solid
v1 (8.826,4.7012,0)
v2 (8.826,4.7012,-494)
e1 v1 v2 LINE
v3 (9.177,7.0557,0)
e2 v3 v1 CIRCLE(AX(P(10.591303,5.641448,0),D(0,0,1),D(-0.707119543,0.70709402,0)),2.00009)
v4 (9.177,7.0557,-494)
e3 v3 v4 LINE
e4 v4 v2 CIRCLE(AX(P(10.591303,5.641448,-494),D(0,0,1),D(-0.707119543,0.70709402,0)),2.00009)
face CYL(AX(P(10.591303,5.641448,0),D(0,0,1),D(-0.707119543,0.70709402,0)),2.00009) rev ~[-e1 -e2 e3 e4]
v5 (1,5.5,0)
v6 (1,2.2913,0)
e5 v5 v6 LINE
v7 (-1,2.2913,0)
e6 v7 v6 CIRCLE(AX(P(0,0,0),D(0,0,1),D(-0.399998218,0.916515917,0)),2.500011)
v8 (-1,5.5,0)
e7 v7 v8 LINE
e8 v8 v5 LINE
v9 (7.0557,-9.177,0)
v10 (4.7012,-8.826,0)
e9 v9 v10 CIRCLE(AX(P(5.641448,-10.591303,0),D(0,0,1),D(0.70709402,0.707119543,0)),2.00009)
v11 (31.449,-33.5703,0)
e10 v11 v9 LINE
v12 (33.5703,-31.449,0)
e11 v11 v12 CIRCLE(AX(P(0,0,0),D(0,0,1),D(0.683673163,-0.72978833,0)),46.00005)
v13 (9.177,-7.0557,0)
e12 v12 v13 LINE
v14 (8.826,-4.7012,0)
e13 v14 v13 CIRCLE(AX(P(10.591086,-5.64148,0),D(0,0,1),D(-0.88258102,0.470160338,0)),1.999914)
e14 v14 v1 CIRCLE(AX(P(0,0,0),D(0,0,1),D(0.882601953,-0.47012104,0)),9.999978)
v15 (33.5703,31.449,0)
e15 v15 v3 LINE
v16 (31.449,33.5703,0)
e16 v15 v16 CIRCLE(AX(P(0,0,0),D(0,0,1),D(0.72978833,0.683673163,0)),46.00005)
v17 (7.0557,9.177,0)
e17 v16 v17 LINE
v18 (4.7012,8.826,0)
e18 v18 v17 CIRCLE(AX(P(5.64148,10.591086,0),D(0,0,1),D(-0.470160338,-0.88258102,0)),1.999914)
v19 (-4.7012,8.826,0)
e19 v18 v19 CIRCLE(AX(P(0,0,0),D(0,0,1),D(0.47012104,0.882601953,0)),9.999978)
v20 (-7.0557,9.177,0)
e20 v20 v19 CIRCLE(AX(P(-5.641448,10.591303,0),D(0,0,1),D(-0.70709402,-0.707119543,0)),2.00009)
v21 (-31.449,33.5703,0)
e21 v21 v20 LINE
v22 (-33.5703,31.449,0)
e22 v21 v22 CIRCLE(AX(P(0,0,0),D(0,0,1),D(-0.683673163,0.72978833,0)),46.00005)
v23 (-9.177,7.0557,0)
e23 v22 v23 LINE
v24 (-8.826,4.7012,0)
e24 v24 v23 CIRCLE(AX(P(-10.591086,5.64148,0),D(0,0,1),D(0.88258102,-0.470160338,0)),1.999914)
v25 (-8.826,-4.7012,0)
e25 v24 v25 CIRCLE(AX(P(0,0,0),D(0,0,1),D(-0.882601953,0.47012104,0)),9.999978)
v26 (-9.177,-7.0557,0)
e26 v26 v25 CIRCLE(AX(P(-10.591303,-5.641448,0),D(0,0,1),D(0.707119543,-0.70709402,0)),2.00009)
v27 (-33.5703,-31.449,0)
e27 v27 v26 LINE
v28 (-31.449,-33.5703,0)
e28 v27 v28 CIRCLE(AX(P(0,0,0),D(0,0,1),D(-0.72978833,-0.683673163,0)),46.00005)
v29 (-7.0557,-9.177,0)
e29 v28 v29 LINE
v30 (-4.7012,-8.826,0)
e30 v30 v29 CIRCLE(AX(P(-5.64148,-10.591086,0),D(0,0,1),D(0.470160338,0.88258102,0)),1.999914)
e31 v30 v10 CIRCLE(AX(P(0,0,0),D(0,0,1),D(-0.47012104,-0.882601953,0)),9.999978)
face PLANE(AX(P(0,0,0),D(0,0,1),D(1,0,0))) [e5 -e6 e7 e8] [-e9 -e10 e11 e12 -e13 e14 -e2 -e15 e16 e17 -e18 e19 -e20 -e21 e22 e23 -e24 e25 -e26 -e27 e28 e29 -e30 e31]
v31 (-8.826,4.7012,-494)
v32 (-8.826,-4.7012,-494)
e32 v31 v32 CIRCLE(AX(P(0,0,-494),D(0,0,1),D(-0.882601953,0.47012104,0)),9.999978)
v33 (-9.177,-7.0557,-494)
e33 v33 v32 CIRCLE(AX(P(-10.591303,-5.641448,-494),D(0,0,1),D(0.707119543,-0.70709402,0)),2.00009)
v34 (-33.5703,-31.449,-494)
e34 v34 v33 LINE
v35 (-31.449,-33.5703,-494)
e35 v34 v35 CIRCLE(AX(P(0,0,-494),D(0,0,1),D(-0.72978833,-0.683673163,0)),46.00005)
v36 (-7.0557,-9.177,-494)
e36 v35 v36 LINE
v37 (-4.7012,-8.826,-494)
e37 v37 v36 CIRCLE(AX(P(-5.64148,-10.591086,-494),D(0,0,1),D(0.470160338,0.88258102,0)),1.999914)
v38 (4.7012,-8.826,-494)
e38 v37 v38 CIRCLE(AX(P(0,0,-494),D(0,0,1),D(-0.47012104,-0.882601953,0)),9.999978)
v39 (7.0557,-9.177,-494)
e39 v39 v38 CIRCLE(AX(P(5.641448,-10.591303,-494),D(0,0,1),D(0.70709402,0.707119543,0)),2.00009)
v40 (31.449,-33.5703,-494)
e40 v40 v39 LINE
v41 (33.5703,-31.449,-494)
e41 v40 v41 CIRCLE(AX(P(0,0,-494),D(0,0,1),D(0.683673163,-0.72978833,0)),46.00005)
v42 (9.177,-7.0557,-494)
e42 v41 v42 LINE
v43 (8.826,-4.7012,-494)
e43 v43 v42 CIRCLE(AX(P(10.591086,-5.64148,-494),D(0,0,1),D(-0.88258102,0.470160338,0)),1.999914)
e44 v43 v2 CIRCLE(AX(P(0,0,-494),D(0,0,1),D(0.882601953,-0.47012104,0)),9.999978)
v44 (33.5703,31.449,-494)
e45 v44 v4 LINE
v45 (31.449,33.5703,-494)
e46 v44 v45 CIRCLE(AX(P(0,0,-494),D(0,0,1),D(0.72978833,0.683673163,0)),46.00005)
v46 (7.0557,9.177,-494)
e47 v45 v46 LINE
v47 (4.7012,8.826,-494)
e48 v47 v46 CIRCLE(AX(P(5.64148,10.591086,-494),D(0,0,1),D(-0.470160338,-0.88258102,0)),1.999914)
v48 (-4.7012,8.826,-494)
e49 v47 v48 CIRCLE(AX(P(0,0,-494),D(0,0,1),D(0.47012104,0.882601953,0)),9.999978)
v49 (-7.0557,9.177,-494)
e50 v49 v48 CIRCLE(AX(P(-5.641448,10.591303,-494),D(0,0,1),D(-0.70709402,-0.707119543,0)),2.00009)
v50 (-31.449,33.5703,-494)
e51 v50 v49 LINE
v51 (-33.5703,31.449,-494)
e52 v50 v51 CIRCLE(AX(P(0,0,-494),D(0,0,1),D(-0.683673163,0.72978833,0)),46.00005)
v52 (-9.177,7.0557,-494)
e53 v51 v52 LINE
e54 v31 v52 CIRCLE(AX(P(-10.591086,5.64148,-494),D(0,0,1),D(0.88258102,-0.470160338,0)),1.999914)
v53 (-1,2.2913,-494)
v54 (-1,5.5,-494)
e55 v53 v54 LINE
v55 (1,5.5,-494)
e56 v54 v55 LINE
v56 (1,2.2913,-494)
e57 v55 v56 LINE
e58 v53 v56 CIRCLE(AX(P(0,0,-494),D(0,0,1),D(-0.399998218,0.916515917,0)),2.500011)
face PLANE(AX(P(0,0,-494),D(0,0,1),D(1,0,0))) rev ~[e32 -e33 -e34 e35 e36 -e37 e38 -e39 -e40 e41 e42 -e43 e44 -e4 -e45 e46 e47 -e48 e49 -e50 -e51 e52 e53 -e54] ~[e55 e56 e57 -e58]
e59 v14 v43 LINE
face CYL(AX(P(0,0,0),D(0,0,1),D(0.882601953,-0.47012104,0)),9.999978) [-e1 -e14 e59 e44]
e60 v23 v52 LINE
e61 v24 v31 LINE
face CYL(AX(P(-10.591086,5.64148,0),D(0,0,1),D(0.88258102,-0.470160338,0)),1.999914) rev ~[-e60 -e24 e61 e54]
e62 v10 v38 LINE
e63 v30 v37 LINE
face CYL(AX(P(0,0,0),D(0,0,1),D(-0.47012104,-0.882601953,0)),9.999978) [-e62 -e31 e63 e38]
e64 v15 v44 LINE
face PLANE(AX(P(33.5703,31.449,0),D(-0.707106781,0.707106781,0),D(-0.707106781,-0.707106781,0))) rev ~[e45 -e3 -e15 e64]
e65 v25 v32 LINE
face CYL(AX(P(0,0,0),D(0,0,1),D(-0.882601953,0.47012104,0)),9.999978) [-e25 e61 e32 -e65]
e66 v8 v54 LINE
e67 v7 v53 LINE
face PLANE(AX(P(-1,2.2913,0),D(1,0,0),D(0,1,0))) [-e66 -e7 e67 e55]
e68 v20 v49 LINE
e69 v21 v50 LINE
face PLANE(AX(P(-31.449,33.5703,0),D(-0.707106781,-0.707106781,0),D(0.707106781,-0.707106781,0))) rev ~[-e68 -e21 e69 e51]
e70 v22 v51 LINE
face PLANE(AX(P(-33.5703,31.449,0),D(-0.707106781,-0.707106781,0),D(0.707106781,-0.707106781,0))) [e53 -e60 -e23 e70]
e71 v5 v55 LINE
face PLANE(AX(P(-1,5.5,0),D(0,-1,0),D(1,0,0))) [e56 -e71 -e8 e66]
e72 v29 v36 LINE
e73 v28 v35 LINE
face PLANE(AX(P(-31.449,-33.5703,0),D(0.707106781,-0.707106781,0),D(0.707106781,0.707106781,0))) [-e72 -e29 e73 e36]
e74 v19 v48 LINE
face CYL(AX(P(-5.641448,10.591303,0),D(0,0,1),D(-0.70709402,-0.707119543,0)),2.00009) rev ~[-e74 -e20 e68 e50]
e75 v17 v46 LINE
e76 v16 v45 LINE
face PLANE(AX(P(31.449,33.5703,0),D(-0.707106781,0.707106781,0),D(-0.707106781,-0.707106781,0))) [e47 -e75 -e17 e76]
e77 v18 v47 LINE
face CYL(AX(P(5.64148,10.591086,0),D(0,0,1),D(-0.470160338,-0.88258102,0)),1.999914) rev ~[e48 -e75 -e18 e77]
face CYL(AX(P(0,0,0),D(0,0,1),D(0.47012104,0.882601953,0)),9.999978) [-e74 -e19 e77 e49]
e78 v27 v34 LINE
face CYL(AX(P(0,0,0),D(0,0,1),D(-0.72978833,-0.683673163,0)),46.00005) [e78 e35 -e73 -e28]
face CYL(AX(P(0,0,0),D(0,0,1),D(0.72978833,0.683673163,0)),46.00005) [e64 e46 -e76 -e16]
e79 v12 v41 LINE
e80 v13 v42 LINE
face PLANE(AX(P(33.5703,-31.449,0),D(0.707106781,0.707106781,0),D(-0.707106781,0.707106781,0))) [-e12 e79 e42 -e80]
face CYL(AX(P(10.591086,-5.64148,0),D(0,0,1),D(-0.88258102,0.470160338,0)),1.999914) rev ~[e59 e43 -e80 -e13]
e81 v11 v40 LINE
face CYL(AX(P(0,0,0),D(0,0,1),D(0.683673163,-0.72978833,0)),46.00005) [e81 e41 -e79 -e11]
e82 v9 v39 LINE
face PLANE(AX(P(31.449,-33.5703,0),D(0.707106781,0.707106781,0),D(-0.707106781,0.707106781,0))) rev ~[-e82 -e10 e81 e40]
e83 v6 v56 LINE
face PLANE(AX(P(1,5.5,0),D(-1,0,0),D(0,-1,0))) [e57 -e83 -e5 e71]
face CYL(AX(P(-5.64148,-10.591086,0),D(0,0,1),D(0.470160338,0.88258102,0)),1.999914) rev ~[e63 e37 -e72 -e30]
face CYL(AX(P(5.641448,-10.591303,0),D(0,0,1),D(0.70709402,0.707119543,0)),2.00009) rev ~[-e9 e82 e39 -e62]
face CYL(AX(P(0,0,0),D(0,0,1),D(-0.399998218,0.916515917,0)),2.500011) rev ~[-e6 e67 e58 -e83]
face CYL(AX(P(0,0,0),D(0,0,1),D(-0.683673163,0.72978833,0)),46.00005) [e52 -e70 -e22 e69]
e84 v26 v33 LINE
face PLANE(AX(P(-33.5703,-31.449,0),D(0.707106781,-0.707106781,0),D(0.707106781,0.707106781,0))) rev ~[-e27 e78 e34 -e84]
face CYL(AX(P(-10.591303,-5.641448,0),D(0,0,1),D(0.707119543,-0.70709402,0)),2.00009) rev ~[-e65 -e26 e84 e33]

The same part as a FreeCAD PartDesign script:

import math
import FreeCAD as App
import Part
import Sketcher
from FreeCAD import Vector

doc = App.newDocument("Part")
body = doc.addObject("PartDesign::Body", "Body")

sketch1 = doc.addObject("Sketcher::SketchObject", "Sketch")
body.addObject(sketch1)
sketch1.AttachmentSupport = (doc.XY_Plane, [""])
sketch1.MapMode = "FlatFace"
sketch1.addGeometry(Part.LineSegment(Vector(9.2, 7.1, 0), Vector(33.6, 31.4, 0)), False)
sketch1.addGeometry(Part.ArcOfCircle(Part.Circle(Vector(0, 0, 0), Vector(0, 0, 1), 46), math.radians(43.13), math.radians(46.87)), False)
sketch1.addGeometry(Part.LineSegment(Vector(31.4, 33.6, 0), Vector(7.1, 9.2, 0)), False)
sketch1.addGeometry(Part.ArcOfCircle(Part.Circle(Vector(5.6, 10.6, 0), Vector(0, 0, 1), 2), math.radians(-118), math.radians(-45)), False)
sketch1.addGeometry(Part.ArcOfCircle(Part.Circle(Vector(0, 0, 0), Vector(0, 0, 1), 10), math.radians(62), math.radians(118)), False)
sketch1.addGeometry(Part.ArcOfCircle(Part.Circle(Vector(-5.6, 10.6, 0), Vector(0, 0, 1), 2), math.radians(-135), math.radians(-62)), False)
sketch1.addGeometry(Part.LineSegment(Vector(-7.1, 9.2, 0), Vector(-31.4, 33.6, 0)), False)
sketch1.addGeometry(Part.ArcOfCircle(Part.Circle(Vector(0, 0, 0), Vector(0, 0, 1), 46), math.radians(133.13), math.radians(136.87)), False)
sketch1.addGeometry(Part.LineSegment(Vector(-33.6, 31.4, 0), Vector(-9.2, 7.1, 0)), False)
sketch1.addGeometry(Part.ArcOfCircle(Part.Circle(Vector(-10.6, 5.6, 0), Vector(0, 0, 1), 2), math.radians(-28), math.radians(45)), False)
sketch1.addGeometry(Part.ArcOfCircle(Part.Circle(Vector(0, 0, 0), Vector(0, 0, 1), 10), math.radians(152), math.radians(208)), False)
sketch1.addGeometry(Part.ArcOfCircle(Part.Circle(Vector(-10.6, -5.6, 0), Vector(0, 0, 1), 2), math.radians(-45), math.radians(28)), False)
sketch1.addGeometry(Part.LineSegment(Vector(-9.2, -7.1, 0), Vector(-33.6, -31.4, 0)), False)
sketch1.addGeometry(Part.ArcOfCircle(Part.Circle(Vector(0, 0, 0), Vector(0, 0, 1), 46), math.radians(-136.87), math.radians(-133.13)), False)
sketch1.addGeometry(Part.LineSegment(Vector(-31.4, -33.6, 0), Vector(-7.1, -9.2, 0)), False)
sketch1.addGeometry(Part.ArcOfCircle(Part.Circle(Vector(-5.6, -10.6, 0), Vector(0, 0, 1), 2), math.radians(62), math.radians(135)), False)
sketch1.addGeometry(Part.ArcOfCircle(Part.Circle(Vector(0, 0, 0), Vector(0, 0, 1), 10), math.radians(-118), math.radians(-62)), False)
sketch1.addGeometry(Part.ArcOfCircle(Part.Circle(Vector(5.6, -10.6, 0), Vector(0, 0, 1), 2), math.radians(45), math.radians(118)), False)
sketch1.addGeometry(Part.LineSegment(Vector(7.1, -9.2, 0), Vector(31.4, -33.6, 0)), False)
sketch1.addGeometry(Part.ArcOfCircle(Part.Circle(Vector(0, 0, 0), Vector(0, 0, 1), 46), math.radians(-46.87), math.radians(-43.13)), False)
sketch1.addGeometry(Part.LineSegment(Vector(33.6, -31.4, 0), Vector(9.2, -7.1, 0)), False)
sketch1.addGeometry(Part.ArcOfCircle(Part.Circle(Vector(10.6, -5.6, 0), Vector(0, 0, 1), 2), math.radians(152), math.radians(225)), False)
sketch1.addGeometry(Part.ArcOfCircle(Part.Circle(Vector(0, 0, 0), Vector(0, 0, 1), 10), math.radians(-28), math.radians(28)), False)
sketch1.addGeometry(Part.ArcOfCircle(Part.Circle(Vector(10.6, 5.6, 0), Vector(0, 0, 1), 2), math.radians(135), math.radians(208)), False)
sketch1.addGeometry(Part.ArcOfCircle(Part.Circle(Vector(0, 0, 0), Vector(0, 0, 1), 2.5), math.radians(114), math.radians(426)), False)
sketch1.addGeometry(Part.LineSegment(Vector(-1, 2.3, 0), Vector(-1, 5.5, 0)), False)
sketch1.addGeometry(Part.LineSegment(Vector(-1, 5.5, 0), Vector(1, 5.5, 0)), False)
sketch1.addGeometry(Part.LineSegment(Vector(1, 5.5, 0), Vector(1, 2.3, 0)), False)
sketch1.addConstraint(Sketcher.Constraint("Coincident", 0, 2, 1, 1))
sketch1.addConstraint(Sketcher.Constraint("Coincident", 1, 2, 2, 1))
sketch1.addConstraint(Sketcher.Constraint("Tangent", 2, 2, 3, 2))
sketch1.addConstraint(Sketcher.Constraint("Tangent", 3, 1, 4, 1))
sketch1.addConstraint(Sketcher.Constraint("Tangent", 4, 2, 5, 2))
sketch1.addConstraint(Sketcher.Constraint("Tangent", 5, 1, 6, 1))
sketch1.addConstraint(Sketcher.Constraint("Coincident", 6, 2, 7, 1))
sketch1.addConstraint(Sketcher.Constraint("Coincident", 7, 2, 8, 1))
sketch1.addConstraint(Sketcher.Constraint("Tangent", 8, 2, 9, 2))
sketch1.addConstraint(Sketcher.Constraint("Tangent", 9, 1, 10, 1))
sketch1.addConstraint(Sketcher.Constraint("Tangent", 10, 2, 11, 2))
sketch1.addConstraint(Sketcher.Constraint("Tangent", 11, 1, 12, 1))
sketch1.addConstraint(Sketcher.Constraint("Coincident", 12, 2, 13, 1))
sketch1.addConstraint(Sketcher.Constraint("Coincident", 13, 2, 14, 1))
sketch1.addConstraint(Sketcher.Constraint("Tangent", 14, 2, 15, 2))
sketch1.addConstraint(Sketcher.Constraint("Tangent", 15, 1, 16, 1))
sketch1.addConstraint(Sketcher.Constraint("Tangent", 16, 2, 17, 2))
sketch1.addConstraint(Sketcher.Constraint("Tangent", 17, 1, 18, 1))
sketch1.addConstraint(Sketcher.Constraint("Coincident", 18, 2, 19, 1))
sketch1.addConstraint(Sketcher.Constraint("Coincident", 19, 2, 20, 1))
sketch1.addConstraint(Sketcher.Constraint("Tangent", 20, 2, 21, 2))
sketch1.addConstraint(Sketcher.Constraint("Tangent", 21, 1, 22, 1))
sketch1.addConstraint(Sketcher.Constraint("Tangent", 22, 2, 23, 2))
sketch1.addConstraint(Sketcher.Constraint("Tangent", 23, 1, 0, 1))
sketch1.addConstraint(Sketcher.Constraint("Coincident", 24, 1, 25, 1))
sketch1.addConstraint(Sketcher.Constraint("Coincident", 25, 2, 26, 1))
sketch1.addConstraint(Sketcher.Constraint("Coincident", 26, 2, 27, 1))
sketch1.addConstraint(Sketcher.Constraint("Coincident", 27, 2, 24, 2))
sketch1.addConstraint(Sketcher.Constraint("Vertical", 25))
sketch1.addConstraint(Sketcher.Constraint("Horizontal", 26))
sketch1.addConstraint(Sketcher.Constraint("Vertical", 27))
sketch1.addConstraint(Sketcher.Constraint("Coincident", 1, 3, -1, 1))
sketch1.addConstraint(Sketcher.Constraint("Coincident", 4, 3, -1, 1))
sketch1.addConstraint(Sketcher.Constraint("Coincident", 7, 3, -1, 1))
sketch1.addConstraint(Sketcher.Constraint("Coincident", 10, 3, -1, 1))
sketch1.addConstraint(Sketcher.Constraint("Coincident", 13, 3, -1, 1))
sketch1.addConstraint(Sketcher.Constraint("Coincident", 16, 3, -1, 1))
sketch1.addConstraint(Sketcher.Constraint("Coincident", 19, 3, -1, 1))
sketch1.addConstraint(Sketcher.Constraint("Coincident", 22, 3, -1, 1))
sketch1.addConstraint(Sketcher.Constraint("Coincident", 24, 3, -1, 1))
sketch1.addConstraint(Sketcher.Constraint("Equal", 3, 5))
sketch1.addConstraint(Sketcher.Constraint("Equal", 1, 7))
sketch1.addConstraint(Sketcher.Constraint("Equal", 5, 9))
sketch1.addConstraint(Sketcher.Constraint("Equal", 4, 10))
sketch1.addConstraint(Sketcher.Constraint("Equal", 9, 11))
sketch1.addConstraint(Sketcher.Constraint("Equal", 7, 13))
sketch1.addConstraint(Sketcher.Constraint("Equal", 11, 15))
sketch1.addConstraint(Sketcher.Constraint("Equal", 10, 16))
sketch1.addConstraint(Sketcher.Constraint("Equal", 15, 17))
sketch1.addConstraint(Sketcher.Constraint("Equal", 13, 19))
sketch1.addConstraint(Sketcher.Constraint("Equal", 17, 21))
sketch1.addConstraint(Sketcher.Constraint("Equal", 16, 22))
sketch1.addConstraint(Sketcher.Constraint("Equal", 21, 23))
sketch1.addConstraint(Sketcher.Constraint("Symmetric", 2, 2, 14, 2, -1, 1))
sketch1.addConstraint(Sketcher.Constraint("Symmetric", 5, 1, 17, 1, -1, 1))
sketch1.addConstraint(Sketcher.Constraint("Symmetric", 8, 2, 20, 2, -1, 1))
sketch1.addConstraint(Sketcher.Constraint("Symmetric", 11, 1, 23, 1, -1, 1))
sketch1.addConstraint(Sketcher.Constraint("Symmetric", 2, 2, 5, 1, -2))
sketch1.addConstraint(Sketcher.Constraint("Symmetric", 11, 1, 20, 2, -2))
sketch1.addConstraint(Sketcher.Constraint("Parallel", 0, 2))
sketch1.addConstraint(Sketcher.Constraint("Perpendicular", 2, 6))
sketch1.addConstraint(Sketcher.Constraint("Horizontal", 24, 1, 27, 2))
sketch1.addConstraint(Sketcher.Constraint("Equal", 0, 2))
sketch1.addConstraint(Sketcher.Constraint("Radius", 1, 46.0))
sketch1.addConstraint(Sketcher.Constraint("Radius", 3, 2.0))
sketch1.addConstraint(Sketcher.Constraint("Radius", 24, 2.5))
sketch1.addConstraint(Sketcher.Constraint("DistanceX", 26, 1, 26, 2, 2.0))
sketch1.addConstraint(Sketcher.Constraint("Radius", 4, 10.0))
sketch1.addConstraint(Sketcher.Constraint("DistanceY", -1, 1, 25, 2, 5.5))
sketch1.addConstraint(Sketcher.Constraint("DistanceX", 3, 1, 23, 3, 5.89))
pad1 = doc.addObject("PartDesign::Pad", "Pad")
body.addObject(pad1)
pad1.Profile = sketch1
pad1.Length = 494
pad1.Reversed = True

doc.recompute()
